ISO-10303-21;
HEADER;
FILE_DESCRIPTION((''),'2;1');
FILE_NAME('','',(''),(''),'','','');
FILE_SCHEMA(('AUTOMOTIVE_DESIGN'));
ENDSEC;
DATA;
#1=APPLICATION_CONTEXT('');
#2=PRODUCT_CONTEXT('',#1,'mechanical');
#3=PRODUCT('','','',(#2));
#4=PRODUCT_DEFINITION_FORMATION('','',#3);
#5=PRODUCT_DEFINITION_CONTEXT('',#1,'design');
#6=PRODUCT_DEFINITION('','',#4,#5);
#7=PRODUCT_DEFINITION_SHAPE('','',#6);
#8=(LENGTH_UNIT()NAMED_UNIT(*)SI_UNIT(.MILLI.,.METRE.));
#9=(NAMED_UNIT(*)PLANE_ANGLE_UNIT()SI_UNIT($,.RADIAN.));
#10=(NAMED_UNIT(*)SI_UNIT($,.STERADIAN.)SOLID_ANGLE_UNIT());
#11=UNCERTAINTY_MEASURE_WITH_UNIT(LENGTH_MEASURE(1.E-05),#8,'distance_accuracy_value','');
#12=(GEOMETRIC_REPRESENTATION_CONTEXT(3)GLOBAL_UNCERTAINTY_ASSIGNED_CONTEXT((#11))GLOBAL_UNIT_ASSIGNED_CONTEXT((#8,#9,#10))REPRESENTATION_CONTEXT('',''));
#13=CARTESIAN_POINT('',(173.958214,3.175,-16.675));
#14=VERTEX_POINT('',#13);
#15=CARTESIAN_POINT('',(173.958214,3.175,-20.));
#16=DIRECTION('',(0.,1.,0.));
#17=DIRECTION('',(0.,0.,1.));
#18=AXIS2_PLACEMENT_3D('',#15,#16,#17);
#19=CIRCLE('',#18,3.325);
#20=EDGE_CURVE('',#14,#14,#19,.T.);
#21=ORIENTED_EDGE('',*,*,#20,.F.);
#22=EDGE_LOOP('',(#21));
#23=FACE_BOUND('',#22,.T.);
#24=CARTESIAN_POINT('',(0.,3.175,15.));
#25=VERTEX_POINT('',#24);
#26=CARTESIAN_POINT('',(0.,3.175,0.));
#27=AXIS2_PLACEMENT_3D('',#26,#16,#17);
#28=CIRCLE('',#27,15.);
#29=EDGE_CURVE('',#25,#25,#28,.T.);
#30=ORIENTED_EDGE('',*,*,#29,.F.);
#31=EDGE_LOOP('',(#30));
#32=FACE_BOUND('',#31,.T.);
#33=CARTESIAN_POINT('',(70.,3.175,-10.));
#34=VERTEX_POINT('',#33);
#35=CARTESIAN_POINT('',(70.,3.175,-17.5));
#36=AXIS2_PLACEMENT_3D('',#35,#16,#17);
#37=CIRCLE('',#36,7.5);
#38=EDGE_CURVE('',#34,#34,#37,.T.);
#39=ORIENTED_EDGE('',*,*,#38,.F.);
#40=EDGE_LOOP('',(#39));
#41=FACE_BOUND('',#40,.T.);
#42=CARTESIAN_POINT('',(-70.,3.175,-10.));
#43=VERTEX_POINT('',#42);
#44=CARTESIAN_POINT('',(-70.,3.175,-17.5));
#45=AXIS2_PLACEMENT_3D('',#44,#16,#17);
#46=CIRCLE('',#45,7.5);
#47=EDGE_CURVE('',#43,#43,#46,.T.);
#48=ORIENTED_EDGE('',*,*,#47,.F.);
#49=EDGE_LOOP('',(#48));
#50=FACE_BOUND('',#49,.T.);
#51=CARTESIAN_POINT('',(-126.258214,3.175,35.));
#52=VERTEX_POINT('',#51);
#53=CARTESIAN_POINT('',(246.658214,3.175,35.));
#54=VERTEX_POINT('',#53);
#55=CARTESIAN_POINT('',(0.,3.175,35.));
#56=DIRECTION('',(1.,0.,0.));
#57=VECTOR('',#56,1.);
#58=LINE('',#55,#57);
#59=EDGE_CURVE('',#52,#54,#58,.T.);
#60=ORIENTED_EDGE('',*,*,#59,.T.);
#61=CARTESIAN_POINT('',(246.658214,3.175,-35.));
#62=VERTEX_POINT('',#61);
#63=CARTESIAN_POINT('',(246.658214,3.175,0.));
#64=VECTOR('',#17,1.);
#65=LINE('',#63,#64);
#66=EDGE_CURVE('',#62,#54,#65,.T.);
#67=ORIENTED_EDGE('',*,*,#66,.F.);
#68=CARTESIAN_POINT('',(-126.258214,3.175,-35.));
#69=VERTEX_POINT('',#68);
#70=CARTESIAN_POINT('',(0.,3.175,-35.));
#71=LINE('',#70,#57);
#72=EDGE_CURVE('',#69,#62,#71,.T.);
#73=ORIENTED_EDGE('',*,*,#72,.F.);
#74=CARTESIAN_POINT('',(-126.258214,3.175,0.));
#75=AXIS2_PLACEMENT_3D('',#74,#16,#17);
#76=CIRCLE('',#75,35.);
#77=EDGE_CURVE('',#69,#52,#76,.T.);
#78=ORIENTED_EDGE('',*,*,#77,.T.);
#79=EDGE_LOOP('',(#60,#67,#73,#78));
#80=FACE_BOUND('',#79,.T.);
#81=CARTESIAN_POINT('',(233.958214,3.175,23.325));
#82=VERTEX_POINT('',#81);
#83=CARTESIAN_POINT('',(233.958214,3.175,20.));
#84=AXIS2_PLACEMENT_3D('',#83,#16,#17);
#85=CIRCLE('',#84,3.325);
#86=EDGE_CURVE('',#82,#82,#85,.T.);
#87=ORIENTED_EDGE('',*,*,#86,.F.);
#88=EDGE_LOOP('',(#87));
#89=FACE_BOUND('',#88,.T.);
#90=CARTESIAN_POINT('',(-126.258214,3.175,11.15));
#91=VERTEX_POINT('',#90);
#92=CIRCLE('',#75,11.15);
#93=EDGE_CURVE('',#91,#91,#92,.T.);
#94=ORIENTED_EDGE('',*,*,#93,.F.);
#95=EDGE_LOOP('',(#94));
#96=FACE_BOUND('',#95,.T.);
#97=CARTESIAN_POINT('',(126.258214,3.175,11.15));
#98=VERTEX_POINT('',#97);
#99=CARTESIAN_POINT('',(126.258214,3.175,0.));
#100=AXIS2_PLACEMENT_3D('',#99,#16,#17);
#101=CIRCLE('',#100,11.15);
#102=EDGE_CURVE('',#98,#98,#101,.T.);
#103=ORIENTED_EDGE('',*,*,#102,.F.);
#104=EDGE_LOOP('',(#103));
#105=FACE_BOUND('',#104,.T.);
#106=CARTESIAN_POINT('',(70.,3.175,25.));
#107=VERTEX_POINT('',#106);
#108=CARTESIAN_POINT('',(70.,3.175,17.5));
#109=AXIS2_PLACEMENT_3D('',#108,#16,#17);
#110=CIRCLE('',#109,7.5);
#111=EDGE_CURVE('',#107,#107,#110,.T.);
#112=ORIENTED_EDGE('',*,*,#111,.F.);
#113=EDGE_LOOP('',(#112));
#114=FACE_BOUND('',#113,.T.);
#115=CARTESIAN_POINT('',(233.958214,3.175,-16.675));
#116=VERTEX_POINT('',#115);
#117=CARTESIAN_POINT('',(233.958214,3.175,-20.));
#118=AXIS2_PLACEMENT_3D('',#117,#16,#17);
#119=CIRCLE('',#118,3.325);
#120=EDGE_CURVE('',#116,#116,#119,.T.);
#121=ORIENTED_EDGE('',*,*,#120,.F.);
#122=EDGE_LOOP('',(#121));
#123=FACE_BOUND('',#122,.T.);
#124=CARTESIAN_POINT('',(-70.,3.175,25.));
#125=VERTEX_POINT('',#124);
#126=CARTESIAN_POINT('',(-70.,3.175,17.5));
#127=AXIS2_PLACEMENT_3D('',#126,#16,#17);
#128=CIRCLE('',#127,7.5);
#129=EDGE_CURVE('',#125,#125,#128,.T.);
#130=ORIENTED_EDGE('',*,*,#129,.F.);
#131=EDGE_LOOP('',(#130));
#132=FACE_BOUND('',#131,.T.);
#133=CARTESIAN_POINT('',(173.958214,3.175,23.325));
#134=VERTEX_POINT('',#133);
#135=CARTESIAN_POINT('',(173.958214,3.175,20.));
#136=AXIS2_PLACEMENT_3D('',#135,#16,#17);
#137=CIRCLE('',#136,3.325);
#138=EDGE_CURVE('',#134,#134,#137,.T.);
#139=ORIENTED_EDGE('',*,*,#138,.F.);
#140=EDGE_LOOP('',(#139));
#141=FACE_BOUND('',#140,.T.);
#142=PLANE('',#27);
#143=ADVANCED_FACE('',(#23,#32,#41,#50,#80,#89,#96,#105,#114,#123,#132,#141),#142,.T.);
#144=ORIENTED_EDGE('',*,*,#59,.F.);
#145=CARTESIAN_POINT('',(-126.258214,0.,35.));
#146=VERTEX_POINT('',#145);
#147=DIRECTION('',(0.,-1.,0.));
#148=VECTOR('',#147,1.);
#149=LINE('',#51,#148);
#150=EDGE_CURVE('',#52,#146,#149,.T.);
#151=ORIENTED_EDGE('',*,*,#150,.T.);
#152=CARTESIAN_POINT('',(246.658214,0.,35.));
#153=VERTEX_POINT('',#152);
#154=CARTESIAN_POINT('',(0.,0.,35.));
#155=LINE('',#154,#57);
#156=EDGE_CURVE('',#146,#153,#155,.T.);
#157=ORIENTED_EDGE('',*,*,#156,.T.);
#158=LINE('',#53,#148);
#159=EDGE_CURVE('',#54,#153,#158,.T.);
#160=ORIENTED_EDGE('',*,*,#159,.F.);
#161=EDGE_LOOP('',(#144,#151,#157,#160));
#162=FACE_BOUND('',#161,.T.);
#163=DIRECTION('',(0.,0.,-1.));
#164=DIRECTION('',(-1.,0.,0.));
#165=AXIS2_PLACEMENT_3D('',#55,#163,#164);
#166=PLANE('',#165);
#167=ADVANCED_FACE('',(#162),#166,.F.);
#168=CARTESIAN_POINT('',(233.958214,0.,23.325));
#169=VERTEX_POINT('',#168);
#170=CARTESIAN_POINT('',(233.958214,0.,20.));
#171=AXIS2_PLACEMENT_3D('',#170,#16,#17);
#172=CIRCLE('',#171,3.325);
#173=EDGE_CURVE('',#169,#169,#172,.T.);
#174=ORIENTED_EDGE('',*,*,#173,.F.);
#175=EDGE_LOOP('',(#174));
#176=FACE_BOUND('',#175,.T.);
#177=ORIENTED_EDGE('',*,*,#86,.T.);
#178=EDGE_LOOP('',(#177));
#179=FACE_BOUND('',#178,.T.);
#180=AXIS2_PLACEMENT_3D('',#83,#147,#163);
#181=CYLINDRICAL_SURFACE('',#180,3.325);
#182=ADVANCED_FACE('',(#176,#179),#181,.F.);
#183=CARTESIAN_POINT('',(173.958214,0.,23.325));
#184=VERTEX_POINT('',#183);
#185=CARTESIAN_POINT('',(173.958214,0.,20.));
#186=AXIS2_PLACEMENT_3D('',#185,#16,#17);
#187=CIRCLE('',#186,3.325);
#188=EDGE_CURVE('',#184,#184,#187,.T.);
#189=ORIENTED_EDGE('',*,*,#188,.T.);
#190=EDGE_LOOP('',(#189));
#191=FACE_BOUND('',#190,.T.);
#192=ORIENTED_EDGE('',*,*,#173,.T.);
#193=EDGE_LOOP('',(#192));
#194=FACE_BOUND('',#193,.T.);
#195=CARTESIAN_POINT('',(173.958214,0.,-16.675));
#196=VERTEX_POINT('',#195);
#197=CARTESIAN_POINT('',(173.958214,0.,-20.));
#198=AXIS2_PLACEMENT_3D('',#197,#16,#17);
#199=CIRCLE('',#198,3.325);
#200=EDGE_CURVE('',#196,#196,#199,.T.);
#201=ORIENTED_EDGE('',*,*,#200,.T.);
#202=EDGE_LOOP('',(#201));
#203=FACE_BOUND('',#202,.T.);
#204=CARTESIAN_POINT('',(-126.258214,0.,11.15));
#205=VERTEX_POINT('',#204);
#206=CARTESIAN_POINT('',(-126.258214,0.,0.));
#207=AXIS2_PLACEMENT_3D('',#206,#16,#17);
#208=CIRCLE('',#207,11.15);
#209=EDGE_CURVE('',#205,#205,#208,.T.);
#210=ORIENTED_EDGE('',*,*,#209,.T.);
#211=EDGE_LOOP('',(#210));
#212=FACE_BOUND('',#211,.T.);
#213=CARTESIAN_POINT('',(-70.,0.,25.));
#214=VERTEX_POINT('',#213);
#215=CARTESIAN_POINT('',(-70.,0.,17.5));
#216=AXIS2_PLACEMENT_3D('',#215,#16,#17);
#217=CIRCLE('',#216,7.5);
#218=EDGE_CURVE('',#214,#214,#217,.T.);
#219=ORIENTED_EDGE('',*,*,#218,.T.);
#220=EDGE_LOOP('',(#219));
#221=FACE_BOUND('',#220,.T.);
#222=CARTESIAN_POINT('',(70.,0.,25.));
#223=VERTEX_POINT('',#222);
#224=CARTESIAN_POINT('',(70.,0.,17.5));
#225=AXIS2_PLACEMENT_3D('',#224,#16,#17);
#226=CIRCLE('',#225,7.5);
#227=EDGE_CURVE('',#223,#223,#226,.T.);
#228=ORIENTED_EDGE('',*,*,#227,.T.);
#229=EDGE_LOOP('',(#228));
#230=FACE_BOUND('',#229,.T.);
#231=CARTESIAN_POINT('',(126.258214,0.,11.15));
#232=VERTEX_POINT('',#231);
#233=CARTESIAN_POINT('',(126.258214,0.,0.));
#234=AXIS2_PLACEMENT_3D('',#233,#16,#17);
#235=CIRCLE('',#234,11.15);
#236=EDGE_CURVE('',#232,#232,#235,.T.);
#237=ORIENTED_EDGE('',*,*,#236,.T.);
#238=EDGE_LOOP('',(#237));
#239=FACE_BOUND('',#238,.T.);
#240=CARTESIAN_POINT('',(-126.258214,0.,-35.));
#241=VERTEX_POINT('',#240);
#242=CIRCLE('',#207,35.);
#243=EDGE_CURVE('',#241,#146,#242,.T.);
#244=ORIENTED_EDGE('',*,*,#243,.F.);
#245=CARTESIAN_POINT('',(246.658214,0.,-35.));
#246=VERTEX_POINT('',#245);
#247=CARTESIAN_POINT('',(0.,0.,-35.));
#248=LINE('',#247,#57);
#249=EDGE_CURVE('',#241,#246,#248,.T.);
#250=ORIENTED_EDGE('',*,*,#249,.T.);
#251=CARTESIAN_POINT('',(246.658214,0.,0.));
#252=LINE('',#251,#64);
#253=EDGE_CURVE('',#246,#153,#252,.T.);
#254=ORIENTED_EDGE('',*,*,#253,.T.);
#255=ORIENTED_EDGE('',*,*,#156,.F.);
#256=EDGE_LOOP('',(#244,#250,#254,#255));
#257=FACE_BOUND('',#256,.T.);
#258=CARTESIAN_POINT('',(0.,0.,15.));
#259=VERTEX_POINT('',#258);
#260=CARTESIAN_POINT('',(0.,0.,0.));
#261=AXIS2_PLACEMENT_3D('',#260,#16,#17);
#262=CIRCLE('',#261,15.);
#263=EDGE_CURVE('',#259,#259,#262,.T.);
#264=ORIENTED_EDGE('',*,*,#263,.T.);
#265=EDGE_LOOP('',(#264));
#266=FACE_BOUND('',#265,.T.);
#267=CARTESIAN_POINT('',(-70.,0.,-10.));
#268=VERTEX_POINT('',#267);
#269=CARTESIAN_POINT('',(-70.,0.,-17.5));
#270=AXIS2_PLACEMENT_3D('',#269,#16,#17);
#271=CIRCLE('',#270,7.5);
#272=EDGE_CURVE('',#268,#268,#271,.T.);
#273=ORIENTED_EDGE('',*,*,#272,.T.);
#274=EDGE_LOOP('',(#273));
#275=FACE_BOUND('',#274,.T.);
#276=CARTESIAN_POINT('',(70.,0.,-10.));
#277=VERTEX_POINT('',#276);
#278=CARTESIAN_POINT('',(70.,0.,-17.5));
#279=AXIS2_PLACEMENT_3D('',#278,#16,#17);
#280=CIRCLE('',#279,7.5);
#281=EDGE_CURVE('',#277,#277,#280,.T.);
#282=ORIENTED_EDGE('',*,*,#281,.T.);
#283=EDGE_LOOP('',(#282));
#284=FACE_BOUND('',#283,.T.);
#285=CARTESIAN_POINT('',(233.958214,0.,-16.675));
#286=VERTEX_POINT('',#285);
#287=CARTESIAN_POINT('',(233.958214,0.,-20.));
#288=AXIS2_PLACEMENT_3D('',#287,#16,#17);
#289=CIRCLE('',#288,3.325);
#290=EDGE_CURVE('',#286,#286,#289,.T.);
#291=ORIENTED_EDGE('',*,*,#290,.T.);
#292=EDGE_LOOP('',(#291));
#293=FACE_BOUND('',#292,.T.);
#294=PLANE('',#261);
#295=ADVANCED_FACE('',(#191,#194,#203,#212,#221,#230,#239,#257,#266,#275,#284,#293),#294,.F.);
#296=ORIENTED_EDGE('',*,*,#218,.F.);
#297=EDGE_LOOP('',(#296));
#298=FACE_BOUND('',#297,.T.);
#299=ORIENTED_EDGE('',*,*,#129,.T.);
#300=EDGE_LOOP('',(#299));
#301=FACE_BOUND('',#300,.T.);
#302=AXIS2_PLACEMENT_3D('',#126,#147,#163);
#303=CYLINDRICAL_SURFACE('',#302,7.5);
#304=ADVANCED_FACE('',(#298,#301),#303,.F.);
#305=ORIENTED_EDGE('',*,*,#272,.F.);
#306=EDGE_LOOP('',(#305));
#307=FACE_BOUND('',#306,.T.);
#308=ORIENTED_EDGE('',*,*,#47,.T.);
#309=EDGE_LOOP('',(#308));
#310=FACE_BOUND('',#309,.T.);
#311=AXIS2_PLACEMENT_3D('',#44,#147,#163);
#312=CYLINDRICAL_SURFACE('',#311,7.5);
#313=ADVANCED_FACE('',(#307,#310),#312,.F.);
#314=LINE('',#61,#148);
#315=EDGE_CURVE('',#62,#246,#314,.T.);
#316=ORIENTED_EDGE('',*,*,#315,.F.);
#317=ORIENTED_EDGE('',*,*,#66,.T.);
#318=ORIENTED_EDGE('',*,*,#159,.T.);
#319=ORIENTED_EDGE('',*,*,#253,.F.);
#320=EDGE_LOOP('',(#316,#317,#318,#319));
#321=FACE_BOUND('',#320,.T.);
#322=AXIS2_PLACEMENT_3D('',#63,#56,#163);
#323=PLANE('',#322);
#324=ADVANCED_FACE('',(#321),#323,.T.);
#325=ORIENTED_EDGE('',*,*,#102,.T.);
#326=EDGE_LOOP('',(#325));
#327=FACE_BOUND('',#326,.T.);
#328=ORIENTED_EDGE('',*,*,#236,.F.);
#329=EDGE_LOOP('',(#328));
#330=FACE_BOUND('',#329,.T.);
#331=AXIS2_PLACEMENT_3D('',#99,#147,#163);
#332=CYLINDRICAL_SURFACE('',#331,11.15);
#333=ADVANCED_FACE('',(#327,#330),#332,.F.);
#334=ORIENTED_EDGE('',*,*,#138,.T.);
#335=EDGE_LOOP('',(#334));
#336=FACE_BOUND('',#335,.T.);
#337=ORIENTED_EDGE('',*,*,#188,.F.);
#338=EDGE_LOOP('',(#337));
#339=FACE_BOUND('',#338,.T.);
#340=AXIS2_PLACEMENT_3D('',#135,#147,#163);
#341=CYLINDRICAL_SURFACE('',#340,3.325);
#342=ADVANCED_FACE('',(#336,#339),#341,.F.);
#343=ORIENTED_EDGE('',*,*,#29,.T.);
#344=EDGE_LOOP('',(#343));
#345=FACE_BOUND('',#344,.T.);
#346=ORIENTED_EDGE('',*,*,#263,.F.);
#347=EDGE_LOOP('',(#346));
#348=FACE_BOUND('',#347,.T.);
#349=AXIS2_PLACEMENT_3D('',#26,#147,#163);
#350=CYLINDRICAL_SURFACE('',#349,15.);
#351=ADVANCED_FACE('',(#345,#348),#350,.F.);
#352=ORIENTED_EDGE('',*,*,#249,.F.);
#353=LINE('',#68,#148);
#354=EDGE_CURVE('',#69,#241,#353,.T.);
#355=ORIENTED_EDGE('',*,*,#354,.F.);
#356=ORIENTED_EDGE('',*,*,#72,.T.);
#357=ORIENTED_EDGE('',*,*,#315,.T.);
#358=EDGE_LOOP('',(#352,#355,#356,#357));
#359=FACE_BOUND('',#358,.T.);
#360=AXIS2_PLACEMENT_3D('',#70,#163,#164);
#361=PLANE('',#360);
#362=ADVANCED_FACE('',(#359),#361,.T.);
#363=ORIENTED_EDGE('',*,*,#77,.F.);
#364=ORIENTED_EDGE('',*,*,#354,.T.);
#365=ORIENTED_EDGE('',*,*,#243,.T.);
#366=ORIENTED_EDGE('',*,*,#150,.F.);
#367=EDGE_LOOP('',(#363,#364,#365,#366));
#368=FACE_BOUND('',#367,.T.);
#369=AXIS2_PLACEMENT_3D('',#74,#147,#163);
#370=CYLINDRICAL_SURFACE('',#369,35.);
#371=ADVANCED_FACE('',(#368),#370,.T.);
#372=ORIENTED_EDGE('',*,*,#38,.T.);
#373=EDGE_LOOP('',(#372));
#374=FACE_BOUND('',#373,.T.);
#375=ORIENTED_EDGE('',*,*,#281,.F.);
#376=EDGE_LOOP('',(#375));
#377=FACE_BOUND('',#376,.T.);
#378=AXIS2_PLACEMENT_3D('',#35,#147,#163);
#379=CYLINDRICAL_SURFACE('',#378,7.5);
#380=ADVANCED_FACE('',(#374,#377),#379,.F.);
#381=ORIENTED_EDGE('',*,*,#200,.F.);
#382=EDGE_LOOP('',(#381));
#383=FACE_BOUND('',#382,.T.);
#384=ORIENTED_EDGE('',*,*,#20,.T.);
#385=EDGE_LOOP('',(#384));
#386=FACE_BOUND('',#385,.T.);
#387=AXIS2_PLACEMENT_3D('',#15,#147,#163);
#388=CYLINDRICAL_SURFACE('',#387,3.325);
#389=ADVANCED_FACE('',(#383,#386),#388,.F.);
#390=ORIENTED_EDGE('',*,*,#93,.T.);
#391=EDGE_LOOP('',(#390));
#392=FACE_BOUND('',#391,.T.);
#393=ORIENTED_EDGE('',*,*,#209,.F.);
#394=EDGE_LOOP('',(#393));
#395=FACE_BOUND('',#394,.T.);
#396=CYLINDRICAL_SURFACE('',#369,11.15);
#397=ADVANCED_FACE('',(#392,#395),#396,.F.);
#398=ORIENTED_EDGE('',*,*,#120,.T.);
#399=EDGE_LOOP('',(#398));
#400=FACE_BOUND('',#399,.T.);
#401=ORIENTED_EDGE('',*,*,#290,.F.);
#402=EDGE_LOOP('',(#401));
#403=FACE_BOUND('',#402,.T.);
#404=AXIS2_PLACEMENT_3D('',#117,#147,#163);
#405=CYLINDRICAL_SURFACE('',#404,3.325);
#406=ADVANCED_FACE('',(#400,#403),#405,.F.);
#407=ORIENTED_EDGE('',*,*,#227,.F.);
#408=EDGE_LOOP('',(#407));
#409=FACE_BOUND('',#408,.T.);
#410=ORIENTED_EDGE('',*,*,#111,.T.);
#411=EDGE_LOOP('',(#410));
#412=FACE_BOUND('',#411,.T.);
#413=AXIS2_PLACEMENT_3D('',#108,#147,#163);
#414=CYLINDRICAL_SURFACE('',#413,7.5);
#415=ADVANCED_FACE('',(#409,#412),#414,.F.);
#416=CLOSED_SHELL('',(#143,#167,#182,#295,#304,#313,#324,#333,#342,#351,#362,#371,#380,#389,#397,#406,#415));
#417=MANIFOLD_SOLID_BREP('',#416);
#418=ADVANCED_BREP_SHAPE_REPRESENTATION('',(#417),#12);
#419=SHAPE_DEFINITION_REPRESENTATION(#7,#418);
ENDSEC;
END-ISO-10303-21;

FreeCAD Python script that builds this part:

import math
import FreeCAD as App
import Part
import Sketcher

V = App.Vector
Q = App.Units.Quantity

doc = App.newDocument("Part")
body = doc.addObject("PartDesign::Body", "Body")

sketch1 = body.newObject("Sketcher::SketchObject", "Sketch")
sketch1.AttachmentSupport = (doc.getObject("XZ_Plane"), [""])
sketch1.MapMode = "FlatFace"
sketch1.addGeometry([
    Part.ArcOfCircle(Part.Circle(V(-126.258214, 0, 0), V(0, 0, 1), 35), math.radians(90), math.radians(270)),
    Part.LineSegment(V(-126.258214, 35, 0), V(246.658214, 35, 0)),
    Part.LineSegment(V(246.658214, 35, 0), V(246.658214, -35, 0)),
    Part.LineSegment(V(246.658214, -35, 0), V(-126.258214, -35, 0)),
    Part.Circle(V(-70, 17.5, 0), V(0, 0, 1), 7.5),
    Part.Circle(V(70, 17.5, 0), V(0, 0, 1), 7.5),
    Part.Circle(V(173.958214, 20, 0), V(0, 0, 1), 3.325),
    Part.Circle(V(233.958214, 20, 0), V(0, 0, 1), 3.325),
    Part.Circle(V(-126.258214, 0, 0), V(0, 0, 1), 11.15),
    Part.Circle(V(0, 0, 0), V(0, 0, 1), 15),
    Part.Circle(V(-70, -17.5, 0), V(0, 0, 1), 7.5),
    Part.Circle(V(126.258214, 0, 0), V(0, 0, 1), 11.15),
    Part.Circle(V(70, -17.5, 0), V(0, 0, 1), 7.5),
    Part.Circle(V(173.958214, -20, 0), V(0, 0, 1), 3.325),
    Part.Circle(V(233.958214, -20, 0), V(0, 0, 1), 3.325),
], False)
sketch1.addConstraint([
    Sketcher.Constraint("Tangent", 0, 1, 1, 1),
    Sketcher.Constraint("Coincident", 1, 2, 2, 1),
    Sketcher.Constraint("Coincident", 2, 2, 3, 1),
    Sketcher.Constraint("Tangent", 3, 2, 0, 2),
    Sketcher.Constraint("Horizontal", 1),
    Sketcher.Constraint("Vertical", 2),
    Sketcher.Constraint("Horizontal", 3),
    Sketcher.Constraint("Coincident", 9, 3, -1, 1),
    Sketcher.Constraint("Coincident", 8, 3, 0, 3),
    Sketcher.Constraint("Equal", 4, 5),
    Sketcher.Constraint("Equal", 6, 7),
    Sketcher.Constraint("Equal", 5, 10),
    Sketcher.Constraint("Equal", 8, 11),
    Sketcher.Constraint("Equal", 10, 12),
    Sketcher.Constraint("Equal", 7, 13),
    Sketcher.Constraint("Equal", 13, 14),
    Sketcher.Constraint("Symmetric", 5, 3, 10, 3, -1, 1),
    Sketcher.Constraint("Symmetric", 0, 3, 11, 3, -1, 1),
    Sketcher.Constraint("Symmetric", 4, 3, 12, 3, -1, 1),
    Sketcher.Constraint("Symmetric", 4, 3, 5, 3, -2),
    Sketcher.Constraint("Symmetric", 6, 3, 13, 3, -1),
    Sketcher.Constraint("Symmetric", 7, 3, 14, 3, -1),
    Sketcher.Constraint("PointOnObject", 0, 3, -1),
    Sketcher.Constraint("Horizontal", 6, 3, 7, 3),
    Sketcher.Constraint("Diameter", 4, Q("15 mm")),
    Sketcher.Constraint("Diameter", 9, Q("30 mm")),
    Sketcher.Constraint("Radius", 0, Q("35 mm")),
    Sketcher.Constraint("Diameter", 8, Q("22.3 mm")),
    Sketcher.Constraint("Diameter", 6, Q("6.65 mm")),
    Sketcher.Constraint("DistanceX", 4, 3, -1, 1, Q("70 mm")),
    Sketcher.Constraint("DistanceY", -1, 1, 6, 3, Q("20 mm")),
    Sketcher.Constraint("DistanceX", 6, 3, 7, 3, Q("60 mm")),
    Sketcher.Constraint("DistanceY", 10, 3, 4, 3, Q("35 mm")),
    Sketcher.Constraint("DistanceX", 11, 3, 6, 3, Q("47.7 mm")),
    Sketcher.Constraint("DistanceX", 7, 3, 1, 2, Q("12.7 mm")),
    Sketcher.Constraint("DistanceX", 1, 1, 1, 2, Q("372.916429 mm")),
])
pad1 = body.newObject("PartDesign::Pad", "Pad")
pad1.Profile = sketch1
pad1.Length = 3.175
pad1.Reversed = True

doc.recompute()
